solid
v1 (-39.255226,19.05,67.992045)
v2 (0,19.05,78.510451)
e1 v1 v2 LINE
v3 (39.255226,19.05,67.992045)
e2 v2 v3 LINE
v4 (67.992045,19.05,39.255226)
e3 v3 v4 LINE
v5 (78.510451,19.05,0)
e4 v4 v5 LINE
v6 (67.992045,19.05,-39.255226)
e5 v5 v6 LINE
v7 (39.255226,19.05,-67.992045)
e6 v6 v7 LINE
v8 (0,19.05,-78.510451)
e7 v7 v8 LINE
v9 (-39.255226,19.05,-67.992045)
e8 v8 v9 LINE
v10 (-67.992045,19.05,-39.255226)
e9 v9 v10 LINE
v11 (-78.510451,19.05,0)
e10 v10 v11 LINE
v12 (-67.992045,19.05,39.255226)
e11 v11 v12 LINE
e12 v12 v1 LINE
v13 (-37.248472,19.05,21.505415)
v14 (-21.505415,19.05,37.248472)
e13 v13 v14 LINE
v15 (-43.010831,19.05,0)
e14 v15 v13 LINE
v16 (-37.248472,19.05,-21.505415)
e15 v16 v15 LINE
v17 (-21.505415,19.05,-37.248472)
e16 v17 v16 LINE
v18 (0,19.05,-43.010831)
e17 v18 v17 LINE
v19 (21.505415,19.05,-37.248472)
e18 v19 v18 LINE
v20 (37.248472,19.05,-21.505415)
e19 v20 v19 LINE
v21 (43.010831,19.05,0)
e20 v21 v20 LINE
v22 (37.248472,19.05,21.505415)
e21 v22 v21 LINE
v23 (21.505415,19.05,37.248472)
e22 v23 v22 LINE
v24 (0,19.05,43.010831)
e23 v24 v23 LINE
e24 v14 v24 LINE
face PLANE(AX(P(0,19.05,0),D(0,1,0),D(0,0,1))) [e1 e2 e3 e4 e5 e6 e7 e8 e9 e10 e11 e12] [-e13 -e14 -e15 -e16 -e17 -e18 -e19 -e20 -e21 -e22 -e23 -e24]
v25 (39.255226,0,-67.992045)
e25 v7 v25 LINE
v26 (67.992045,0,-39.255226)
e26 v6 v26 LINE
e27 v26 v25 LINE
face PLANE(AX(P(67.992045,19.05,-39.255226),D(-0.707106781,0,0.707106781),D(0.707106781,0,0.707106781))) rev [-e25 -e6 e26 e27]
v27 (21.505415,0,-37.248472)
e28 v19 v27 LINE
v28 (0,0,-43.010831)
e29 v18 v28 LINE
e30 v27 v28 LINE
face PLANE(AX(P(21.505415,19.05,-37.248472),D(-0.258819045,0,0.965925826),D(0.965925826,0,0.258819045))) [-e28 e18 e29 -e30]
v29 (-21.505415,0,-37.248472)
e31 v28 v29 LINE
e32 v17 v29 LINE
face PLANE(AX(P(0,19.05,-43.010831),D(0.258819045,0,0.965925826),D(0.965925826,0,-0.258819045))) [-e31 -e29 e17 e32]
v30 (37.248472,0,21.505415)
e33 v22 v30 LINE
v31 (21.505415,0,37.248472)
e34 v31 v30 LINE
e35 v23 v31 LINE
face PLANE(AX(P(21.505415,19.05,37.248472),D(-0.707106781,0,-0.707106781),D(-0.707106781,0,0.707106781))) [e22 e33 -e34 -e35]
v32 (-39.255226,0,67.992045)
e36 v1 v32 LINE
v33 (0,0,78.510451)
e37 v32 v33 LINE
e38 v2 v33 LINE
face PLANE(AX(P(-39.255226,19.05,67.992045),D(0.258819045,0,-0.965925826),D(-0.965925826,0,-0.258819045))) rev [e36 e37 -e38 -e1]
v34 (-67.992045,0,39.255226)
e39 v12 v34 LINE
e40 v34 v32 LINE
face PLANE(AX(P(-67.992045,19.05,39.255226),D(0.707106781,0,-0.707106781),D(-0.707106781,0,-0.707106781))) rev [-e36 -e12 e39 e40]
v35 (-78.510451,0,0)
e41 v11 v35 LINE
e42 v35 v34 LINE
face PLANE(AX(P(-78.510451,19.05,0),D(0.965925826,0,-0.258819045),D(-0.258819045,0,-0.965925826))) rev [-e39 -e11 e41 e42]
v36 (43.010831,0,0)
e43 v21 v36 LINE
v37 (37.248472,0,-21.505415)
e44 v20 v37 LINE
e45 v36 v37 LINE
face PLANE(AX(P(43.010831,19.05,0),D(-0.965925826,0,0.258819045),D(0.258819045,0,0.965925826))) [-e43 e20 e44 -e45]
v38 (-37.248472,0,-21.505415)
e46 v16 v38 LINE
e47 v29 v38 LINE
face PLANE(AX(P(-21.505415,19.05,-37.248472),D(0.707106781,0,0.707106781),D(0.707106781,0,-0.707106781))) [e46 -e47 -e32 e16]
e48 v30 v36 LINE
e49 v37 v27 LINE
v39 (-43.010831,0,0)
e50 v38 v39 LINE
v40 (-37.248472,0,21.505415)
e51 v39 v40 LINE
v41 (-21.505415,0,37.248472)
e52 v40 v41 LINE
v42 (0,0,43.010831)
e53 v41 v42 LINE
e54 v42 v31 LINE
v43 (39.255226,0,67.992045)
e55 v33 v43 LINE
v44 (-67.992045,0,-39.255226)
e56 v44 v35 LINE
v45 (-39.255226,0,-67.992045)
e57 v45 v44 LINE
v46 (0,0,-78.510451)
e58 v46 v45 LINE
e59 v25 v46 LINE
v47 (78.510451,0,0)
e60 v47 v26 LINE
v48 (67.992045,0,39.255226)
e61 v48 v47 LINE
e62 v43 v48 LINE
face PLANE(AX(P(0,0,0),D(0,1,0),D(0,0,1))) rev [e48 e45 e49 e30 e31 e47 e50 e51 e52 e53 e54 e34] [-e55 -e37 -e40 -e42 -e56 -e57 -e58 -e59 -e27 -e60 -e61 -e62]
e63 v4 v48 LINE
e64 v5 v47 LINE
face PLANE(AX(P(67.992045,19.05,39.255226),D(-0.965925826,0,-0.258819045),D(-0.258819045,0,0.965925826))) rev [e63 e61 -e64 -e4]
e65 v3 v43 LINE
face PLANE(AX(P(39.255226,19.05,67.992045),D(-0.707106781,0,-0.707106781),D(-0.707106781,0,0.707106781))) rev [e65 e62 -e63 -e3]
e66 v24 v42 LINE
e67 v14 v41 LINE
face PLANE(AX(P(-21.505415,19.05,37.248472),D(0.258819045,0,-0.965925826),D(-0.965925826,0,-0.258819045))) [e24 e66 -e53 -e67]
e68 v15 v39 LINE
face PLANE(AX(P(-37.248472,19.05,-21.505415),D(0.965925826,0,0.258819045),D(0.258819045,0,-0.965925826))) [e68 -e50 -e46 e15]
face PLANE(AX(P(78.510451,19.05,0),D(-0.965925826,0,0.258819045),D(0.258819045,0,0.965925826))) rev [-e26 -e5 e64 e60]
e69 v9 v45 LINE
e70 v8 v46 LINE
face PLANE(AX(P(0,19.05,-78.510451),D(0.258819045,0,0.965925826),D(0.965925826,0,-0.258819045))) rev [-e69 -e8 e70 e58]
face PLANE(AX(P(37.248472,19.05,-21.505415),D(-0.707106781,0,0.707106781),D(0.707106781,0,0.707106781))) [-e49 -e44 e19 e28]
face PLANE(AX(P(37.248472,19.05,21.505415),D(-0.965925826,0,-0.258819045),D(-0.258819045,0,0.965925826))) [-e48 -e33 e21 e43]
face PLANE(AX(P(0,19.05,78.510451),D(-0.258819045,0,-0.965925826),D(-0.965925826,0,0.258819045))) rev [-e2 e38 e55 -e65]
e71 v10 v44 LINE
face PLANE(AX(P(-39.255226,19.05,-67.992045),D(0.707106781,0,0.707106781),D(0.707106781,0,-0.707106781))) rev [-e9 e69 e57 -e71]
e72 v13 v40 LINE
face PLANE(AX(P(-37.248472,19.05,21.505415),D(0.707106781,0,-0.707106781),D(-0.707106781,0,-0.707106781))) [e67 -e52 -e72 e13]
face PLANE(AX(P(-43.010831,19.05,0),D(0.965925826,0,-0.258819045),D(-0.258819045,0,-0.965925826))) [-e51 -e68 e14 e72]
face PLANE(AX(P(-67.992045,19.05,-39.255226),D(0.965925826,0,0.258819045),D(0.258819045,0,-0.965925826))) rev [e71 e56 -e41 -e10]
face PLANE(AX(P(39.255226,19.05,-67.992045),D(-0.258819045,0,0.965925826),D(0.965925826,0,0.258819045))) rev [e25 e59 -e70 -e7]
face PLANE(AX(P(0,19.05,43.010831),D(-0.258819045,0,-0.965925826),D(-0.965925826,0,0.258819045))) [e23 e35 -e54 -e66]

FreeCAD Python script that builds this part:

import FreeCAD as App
import Part
import Sketcher
Q = App.Units.Quantity

doc = App.newDocument("Part")
body = doc.addObject("PartDesign::Body", "Body")

# Sketch on XZ plane
sketch1 = body.newObject("Sketcher::SketchObject", "Sketch")
sketch1.AttachmentSupport = (doc.getObject("XZ_Plane"), [""])
sketch1.MapMode = "FlatFace"
sketch1.addGeometry([
    Part.LineSegment(App.Vector(78.510451, 0, 0), App.Vector(67.992045, -39.255226, 0)),  # 0
    Part.LineSegment(App.Vector(67.992045, -39.255226, 0), App.Vector(39.255226, -67.992045, 0)),  # 1
    Part.LineSegment(App.Vector(39.255226, -67.992045, 0), App.Vector(0, -78.510451, 0)),  # 2
    Part.LineSegment(App.Vector(0, -78.510451, 0), App.Vector(-39.255226, -67.992045, 0)),  # 3
    Part.LineSegment(App.Vector(-39.255226, -67.992045, 0), App.Vector(-67.992045, -39.255226, 0)),  # 4
    Part.LineSegment(App.Vector(-67.992045, -39.255226, 0), App.Vector(-78.510451, 0, 0)),  # 5
    Part.LineSegment(App.Vector(-78.510451, 0, 0), App.Vector(-67.992045, 39.255226, 0)),  # 6
    Part.LineSegment(App.Vector(-67.992045, 39.255226, 0), App.Vector(-39.255226, 67.992045, 0)),  # 7
    Part.LineSegment(App.Vector(-39.255226, 67.992045, 0), App.Vector(0, 78.510451, 0)),  # 8
    Part.LineSegment(App.Vector(0, 78.510451, 0), App.Vector(39.255226, 67.992045, 0)),  # 9
    Part.LineSegment(App.Vector(39.255226, 67.992045, 0), App.Vector(67.992045, 39.255226, 0)),  # 10
    Part.LineSegment(App.Vector(67.992045, 39.255226, 0), App.Vector(78.510451, 0, 0)),  # 11
    Part.LineSegment(App.Vector(37.248472, -21.505415, 0), App.Vector(43.010831, 0, 0)),  # 12
    Part.LineSegment(App.Vector(43.010831, 0, 0), App.Vector(37.248472, 21.505415, 0)),  # 13
    Part.LineSegment(App.Vector(37.248472, 21.505415, 0), App.Vector(21.505415, 37.248472, 0)),  # 14
    Part.LineSegment(App.Vector(21.505415, 37.248472, 0), App.Vector(0, 43.010831, 0)),  # 15
    Part.LineSegment(App.Vector(0, 43.010831, 0), App.Vector(-21.505415, 37.248472, 0)),  # 16
    Part.LineSegment(App.Vector(-21.505415, 37.248472, 0), App.Vector(-37.248472, 21.505415, 0)),  # 17
    Part.LineSegment(App.Vector(-37.248472, 21.505415, 0), App.Vector(-43.010831, 0, 0)),  # 18
    Part.LineSegment(App.Vector(-43.010831, 0, 0), App.Vector(-37.248472, -21.505415, 0)),  # 19
    Part.LineSegment(App.Vector(-37.248472, -21.505415, 0), App.Vector(-21.505415, -37.248472, 0)),  # 20
    Part.LineSegment(App.Vector(-21.505415, -37.248472, 0), App.Vector(0, -43.010831, 0)),  # 21
    Part.LineSegment(App.Vector(0, -43.010831, 0), App.Vector(21.505415, -37.248472, 0)),  # 22
    Part.LineSegment(App.Vector(21.505415, -37.248472, 0), App.Vector(37.248472, -21.505415, 0)),  # 23
], False)
sketch1.addConstraint([
    Sketcher.Constraint("Coincident", 0, 2, 1, 1),
    Sketcher.Constraint("Coincident", 1, 2, 2, 1),
    Sketcher.Constraint("Coincident", 2, 2, 3, 1),
    Sketcher.Constraint("Coincident", 3, 2, 4, 1),
    Sketcher.Constraint("Coincident", 4, 2, 5, 1),
    Sketcher.Constraint("Coincident", 5, 2, 6, 1),
    Sketcher.Constraint("Coincident", 6, 2, 7, 1),
    Sketcher.Constraint("Coincident", 7, 2, 8, 1),
    Sketcher.Constraint("Coincident", 8, 2, 9, 1),
    Sketcher.Constraint("Coincident", 9, 2, 10, 1),
    Sketcher.Constraint("Coincident", 10, 2, 11, 1),
    Sketcher.Constraint("Coincident", 11, 2, 0, 1),
    Sketcher.Constraint("Coincident", 12, 2, 13, 1),
    Sketcher.Constraint("Coincident", 13, 2, 14, 1),
    Sketcher.Constraint("Coincident", 14, 2, 15, 1),
    Sketcher.Constraint("Coincident", 15, 2, 16, 1),
    Sketcher.Constraint("Coincident", 16, 2, 17, 1),
    Sketcher.Constraint("Coincident", 17, 2, 18, 1),
    Sketcher.Constraint("Coincident", 18, 2, 19, 1),
    Sketcher.Constraint("Coincident", 19, 2, 20, 1),
    Sketcher.Constraint("Coincident", 20, 2, 21, 1),
    Sketcher.Constraint("Coincident", 21, 2, 22, 1),
    Sketcher.Constraint("Coincident", 22, 2, 23, 1),
    Sketcher.Constraint("Coincident", 23, 2, 12, 1),
    Sketcher.Constraint("Symmetric", 0, 2, 6, 2, -1, 1),
    Sketcher.Constraint("Symmetric", 1, 2, 7, 2, -1, 1),
    Sketcher.Constraint("Symmetric", 2, 2, 8, 2, -1, 1),
    Sketcher.Constraint("Symmetric", 3, 2, 9, 2, -1, 1),
    Sketcher.Constraint("Symmetric", 4, 2, 10, 2, -1, 1),
    Sketcher.Constraint("Symmetric", 5, 2, 11, 2, -1, 1),
    Sketcher.Constraint("Symmetric", 12, 2, 18, 2, -1, 1),
    Sketcher.Constraint("Symmetric", 13, 2, 19, 2, -1, 1),
    Sketcher.Constraint("Symmetric", 14, 2, 20, 2, -1, 1),
    Sketcher.Constraint("Symmetric", 15, 2, 21, 2, -1, 1),
    Sketcher.Constraint("Symmetric", 16, 2, 22, 2, -1, 1),
    Sketcher.Constraint("Symmetric", 17, 2, 23, 2, -1, 1),
    Sketcher.Constraint("Symmetric", 1, 2, 3, 2, -2),
    Sketcher.Constraint("Symmetric", 0, 2, 4, 2, -2),
    Sketcher.Constraint("Symmetric", 14, 2, 16, 2, -2),
    Sketcher.Constraint("Symmetric", 13, 2, 17, 2, -2),
    Sketcher.Constraint("PointOnObject", 2, 2, -2),
    Sketcher.Constraint("PointOnObject", 5, 2, -1),
    Sketcher.Constraint("PointOnObject", 12, 2, -1),
    Sketcher.Constraint("PointOnObject", 15, 2, -2),
    Sketcher.Constraint("Perpendicular", 0, 3),
    Sketcher.Constraint("Perpendicular", 1, 4),
    Sketcher.Constraint("Perpendicular", 9, 12),
    Sketcher.Constraint("Parallel", 10, 14),
    Sketcher.Constraint("Perpendicular", 12, 15),
    Sketcher.Constraint("Equal", 0, 1),
    Sketcher.Constraint("Equal", 1, 2),
    Sketcher.Constraint("Equal", 13, 14),
    Sketcher.Constraint("Equal", 14, 15),
    Sketcher.Constraint("Angle", 0, Q("-105 deg")),
    Sketcher.Constraint("Distance", 0, Q("1.6 in")),
    Sketcher.Constraint("DistanceX", -1, 1, 12, 2, 43.010831),
])
pad1 = body.newObject("PartDesign::Pad", "Pad")
pad1.Profile = sketch1
pad1.Length = Q("0.75 in")
pad1.Reversed = True

doc.recompute()
